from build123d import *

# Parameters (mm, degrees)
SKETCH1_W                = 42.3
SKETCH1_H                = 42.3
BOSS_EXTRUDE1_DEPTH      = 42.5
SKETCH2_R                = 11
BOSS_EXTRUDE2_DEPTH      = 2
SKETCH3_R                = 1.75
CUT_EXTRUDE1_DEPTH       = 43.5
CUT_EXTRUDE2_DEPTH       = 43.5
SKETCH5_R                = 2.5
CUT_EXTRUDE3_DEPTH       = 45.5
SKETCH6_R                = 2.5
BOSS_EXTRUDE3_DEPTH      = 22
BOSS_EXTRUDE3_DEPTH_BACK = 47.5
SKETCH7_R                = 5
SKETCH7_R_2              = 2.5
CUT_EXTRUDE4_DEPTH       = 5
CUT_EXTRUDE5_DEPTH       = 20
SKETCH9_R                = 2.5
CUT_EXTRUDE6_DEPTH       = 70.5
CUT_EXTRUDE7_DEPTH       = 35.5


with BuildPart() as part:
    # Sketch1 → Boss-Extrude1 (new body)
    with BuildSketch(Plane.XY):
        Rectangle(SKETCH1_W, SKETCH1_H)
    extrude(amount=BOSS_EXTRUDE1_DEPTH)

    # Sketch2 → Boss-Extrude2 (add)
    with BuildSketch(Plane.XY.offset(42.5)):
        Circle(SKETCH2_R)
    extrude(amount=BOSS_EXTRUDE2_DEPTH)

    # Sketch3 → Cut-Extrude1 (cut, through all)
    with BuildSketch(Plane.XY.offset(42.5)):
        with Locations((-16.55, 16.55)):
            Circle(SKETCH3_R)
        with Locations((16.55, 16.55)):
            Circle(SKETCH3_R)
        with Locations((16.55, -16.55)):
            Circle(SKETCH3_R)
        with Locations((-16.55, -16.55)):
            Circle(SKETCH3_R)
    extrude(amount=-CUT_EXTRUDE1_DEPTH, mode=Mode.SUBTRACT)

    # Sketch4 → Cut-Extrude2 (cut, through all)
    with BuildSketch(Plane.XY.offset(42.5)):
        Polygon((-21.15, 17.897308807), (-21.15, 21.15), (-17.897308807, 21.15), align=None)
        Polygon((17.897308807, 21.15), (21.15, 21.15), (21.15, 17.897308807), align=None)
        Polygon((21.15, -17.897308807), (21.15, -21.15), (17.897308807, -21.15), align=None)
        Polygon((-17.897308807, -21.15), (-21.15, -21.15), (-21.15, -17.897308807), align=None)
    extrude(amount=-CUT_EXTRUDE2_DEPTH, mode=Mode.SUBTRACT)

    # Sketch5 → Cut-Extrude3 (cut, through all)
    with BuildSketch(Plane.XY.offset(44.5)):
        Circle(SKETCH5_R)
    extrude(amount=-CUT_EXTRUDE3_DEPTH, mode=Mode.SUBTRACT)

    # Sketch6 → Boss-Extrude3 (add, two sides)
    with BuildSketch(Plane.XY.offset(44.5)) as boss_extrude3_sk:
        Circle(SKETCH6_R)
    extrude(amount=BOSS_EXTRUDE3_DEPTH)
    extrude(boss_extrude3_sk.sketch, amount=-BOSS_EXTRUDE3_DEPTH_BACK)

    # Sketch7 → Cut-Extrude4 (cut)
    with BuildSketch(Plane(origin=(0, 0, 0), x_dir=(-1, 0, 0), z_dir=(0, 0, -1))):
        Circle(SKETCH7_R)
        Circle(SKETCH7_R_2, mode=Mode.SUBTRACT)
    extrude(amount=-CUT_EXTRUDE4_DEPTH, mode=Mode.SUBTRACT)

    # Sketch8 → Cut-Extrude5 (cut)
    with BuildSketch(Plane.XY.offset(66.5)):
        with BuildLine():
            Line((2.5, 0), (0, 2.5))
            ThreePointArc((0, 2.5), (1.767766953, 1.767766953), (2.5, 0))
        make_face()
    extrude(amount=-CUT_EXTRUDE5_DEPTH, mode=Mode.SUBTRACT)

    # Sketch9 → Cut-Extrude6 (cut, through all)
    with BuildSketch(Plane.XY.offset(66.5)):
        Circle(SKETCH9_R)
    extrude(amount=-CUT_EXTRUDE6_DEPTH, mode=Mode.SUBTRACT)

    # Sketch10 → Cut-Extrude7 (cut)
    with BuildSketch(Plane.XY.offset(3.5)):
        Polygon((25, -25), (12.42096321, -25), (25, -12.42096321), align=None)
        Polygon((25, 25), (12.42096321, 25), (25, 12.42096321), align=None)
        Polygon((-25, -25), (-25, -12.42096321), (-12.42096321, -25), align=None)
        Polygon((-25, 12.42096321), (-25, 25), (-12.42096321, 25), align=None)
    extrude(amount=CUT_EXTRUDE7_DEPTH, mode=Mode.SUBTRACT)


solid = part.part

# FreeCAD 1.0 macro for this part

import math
import FreeCAD as App
import Part
import Sketcher
from FreeCAD import Vector


def add_polygon(sketch, points):
    """Adds a closed chain of lines whose ends are joined by coincident constraints."""
    first, n = sketch.GeometryCount, len(points)
    for a, b in zip(points, points[1:] + points[:1]):
        sketch.addGeometry(Part.LineSegment(App.Vector(*a, 0), App.Vector(*b, 0)), False)
    for i in range(n):
        sketch.addConstraint(Sketcher.Constraint("Coincident", first + i, 2, first + (i + 1) % n, 1))

doc = App.newDocument("Part")
body = doc.addObject("PartDesign::Body", "Body")

sketch1 = body.newObject("Sketcher::SketchObject", "Sketch")
sketch1.AttachmentSupport = (doc.getObject("XY_Plane"), [""])
sketch1.MapMode = "FlatFace"
add_polygon(sketch1, [(-21, 21), (-21, -21), (21, -21), (21, 21)])
sketch1.addConstraint([
    Sketcher.Constraint("Vertical", 0),
    Sketcher.Constraint("Horizontal", 1),
    Sketcher.Constraint("Vertical", 2),
    Sketcher.Constraint("Horizontal", 3),
    Sketcher.Constraint("Symmetric", 0, 2, 2, 2, -1, 1),
    Sketcher.Constraint("Equal", 3, 0),
    Sketcher.Constraint("DistanceX", 1, 1, 1, 2, 42.3),
])
pad1 = body.newObject("PartDesign::Pad", "Pad")
pad1.Profile = sketch1
pad1.Length = 42.5

sketch2 = body.newObject("Sketcher::SketchObject", "Sketch001")
sketch2.AttachmentSupport = (doc.getObject("XY_Plane"), [""])
sketch2.MapMode = "FlatFace"
sketch2.AttachmentOffset = App.Placement(Vector(0, 0, 42.5), App.Rotation())
sketch2.addGeometry(Part.Circle(Vector(0, 0, 0), Vector(0, 0, 1), 11), False)
sketch2.addConstraint([
    Sketcher.Constraint("Coincident", 0, 3, -1, 1),
    Sketcher.Constraint("Diameter", 0, 22.0),
])
pad2 = body.newObject("PartDesign::Pad", "Pad001")
pad2.Profile = sketch2
pad2.Length = 2

sketch3 = body.newObject("Sketcher::SketchObject", "Sketch002")
sketch3.AttachmentSupport = (doc.getObject("XY_Plane"), [""])
sketch3.MapMode = "FlatFace"
sketch3.AttachmentOffset = App.Placement(Vector(0, 0, 42.5), App.Rotation())
sketch3.addGeometry([
    Part.Circle(Vector(-16.6, 16.6, 0), Vector(0, 0, 1), 1.8),
    Part.Circle(Vector(16.6, 16.6, 0), Vector(0, 0, 1), 1.8),
    Part.Circle(Vector(16.6, -16.6, 0), Vector(0, 0, 1), 1.8),
    Part.Circle(Vector(-16.6, -16.6, 0), Vector(0, 0, 1), 1.8),
], False)
sketch3.addConstraint([
    Sketcher.Constraint("Equal", 0, 1),
    Sketcher.Constraint("Equal", 1, 2),
    Sketcher.Constraint("Equal", 2, 3),
    Sketcher.Constraint("Symmetric", 0, 3, 2, 3, -1, 1),
    Sketcher.Constraint("Symmetric", 1, 3, 3, 3, -1, 1),
    Sketcher.Constraint("Symmetric", 0, 3, 1, 3, -2),
    Sketcher.Constraint("Diameter", 0, 3.5),
    Sketcher.Constraint("DistanceX", 0, 3, 1, 3, 33.1),
    Sketcher.Constraint("DistanceY", 2, 3, 1, 3, 33.1),
])
pocket1 = body.newObject("PartDesign::Pocket", "Pocket")
pocket1.Profile = sketch3
pocket1.Type = "ThroughAll"

sketch4 = body.newObject("Sketcher::SketchObject", "Sketch003")
sketch4.AttachmentSupport = (doc.getObject("XY_Plane"), [""])
sketch4.MapMode = "FlatFace"
sketch4.AttachmentOffset = App.Placement(Vector(0, 0, 42.5), App.Rotation())
add_polygon(sketch4, [(-21.1, 21.1), (-21.1, 17.9), (-17.9, 21.1)])
add_polygon(sketch4, [(21.1, 21.1), (17.9, 21.1), (21.1, 17.9)])
add_polygon(sketch4, [(21.1, -21.1), (21.1, -17.9), (17.9, -21.1)])
add_polygon(sketch4, [(-21.1, -21.1), (-17.9, -21.1), (-21.1, -17.9)])
sketch4.addConstraint([
    Sketcher.Constraint("Vertical", 0),
    Sketcher.Constraint("Horizontal", 2),
    Sketcher.Constraint("Horizontal", 3),
    Sketcher.Constraint("Vertical", 5),
    Sketcher.Constraint("Vertical", 6),
    Sketcher.Constraint("Horizontal", 8),
    Sketcher.Constraint("Horizontal", 9),
    Sketcher.Constraint("Vertical", 11),
    Sketcher.Constraint("Symmetric", 0, 2, 6, 2, -1, 1),
    Sketcher.Constraint("Symmetric", 1, 2, 7, 2, -1, 1),
    Sketcher.Constraint("Symmetric", 3, 2, 9, 2, -1, 1),
    Sketcher.Constraint("Symmetric", 4, 2, 10, 2, -1, 1),
    Sketcher.Constraint("Symmetric", 1, 2, 3, 2, -2),
    Sketcher.Constraint("Symmetric", 0, 2, 4, 2, -2),
    Sketcher.Constraint("Perpendicular", 1, 4),
    Sketcher.Constraint("Distance", 1, 4.6),
    Sketcher.Constraint("DistanceX", 0, 2, 4, 2, 42.3),
    Sketcher.Constraint("DistanceY", 7, 2, 3, 2, 42.3),
])
pocket2 = body.newObject("PartDesign::Pocket", "Pocket001")
pocket2.Profile = sketch4
pocket2.Type = "ThroughAll"

sketch5 = body.newObject("Sketcher::SketchObject", "Sketch004")
sketch5.AttachmentSupport = (doc.getObject("XY_Plane"), [""])
sketch5.MapMode = "FlatFace"
sketch5.AttachmentOffset = App.Placement(Vector(0, 0, 44.5), App.Rotation())
sketch5.addGeometry(Part.Circle(Vector(0, 0, 0), Vector(0, 0, 1), 2.5), False)
sketch5.addConstraint([
    Sketcher.Constraint("Coincident", 0, 3, -1, 1),
    Sketcher.Constraint("Diameter", 0, 5.0),
])
pocket3 = body.newObject("PartDesign::Pocket", "Pocket002")
pocket3.Profile = sketch5
pocket3.Type = "ThroughAll"

sketch6 = body.newObject("Sketcher::SketchObject", "Sketch005")
sketch6.AttachmentSupport = (doc.getObject("XY_Plane"), [""])
sketch6.MapMode = "FlatFace"
sketch6.AttachmentOffset = App.Placement(Vector(0, 0, 44.5), App.Rotation())
sketch6.addGeometry(Part.Circle(Vector(0, 0, 0), Vector(0, 0, 1), 2.5), False)
sketch6.addConstraint([
    Sketcher.Constraint("Coincident", 0, 3, -1, 1),
    Sketcher.Constraint("Diameter", 0, 5.0),
])
pad3 = body.newObject("PartDesign::Pad", "Pad002")
pad3.Profile = sketch6
pad3.Type = "TwoLengths"
pad3.Length = 22
pad3.Length2 = 47.5

sketch7 = body.newObject("Sketcher::SketchObject", "Sketch006")
sketch7.AttachmentSupport = (doc.getObject("XY_Plane"), [""])
sketch7.MapMode = "FlatFace"
sketch7.addGeometry([
    Part.Circle(Vector(0, 0, 0), Vector(0, 0, 1), 5),
    Part.Circle(Vector(0, 0, 0), Vector(0, 0, 1), 2.5),
], False)
sketch7.addConstraint([
    Sketcher.Constraint("Coincident", 0, 3, -1, 1),
    Sketcher.Constraint("Coincident", 1, 3, -1, 1),
    Sketcher.Constraint("Diameter", 0, 10.0),
    Sketcher.Constraint("Diameter", 1, 5.0),
])
pocket4 = body.newObject("PartDesign::Pocket", "Pocket003")
pocket4.Profile = sketch7
pocket4.Length = 5
pocket4.Reversed = True

sketch8 = body.newObject("Sketcher::SketchObject", "Sketch007")
sketch8.AttachmentSupport = (doc.getObject("XY_Plane"), [""])
sketch8.MapMode = "FlatFace"
sketch8.AttachmentOffset = App.Placement(Vector(0, 0, 66.5), App.Rotation())
sketch8.addGeometry([
    Part.LineSegment(Vector(0, 2.5, 0), Vector(2.5, 0, 0)),
    Part.ArcOfCircle(Part.Circle(Vector(0, 0, 0), Vector(0, 0, 1), 2.5), math.radians(0), math.radians(90)),
], False)
sketch8.addConstraint([
    Sketcher.Constraint("Coincident", 0, 1, 1, 2),
    Sketcher.Constraint("Coincident", 1, 1, 0, 2),
    Sketcher.Constraint("Coincident", 1, 3, -1, 1),
    Sketcher.Constraint("PointOnObject", 0, 1, -2),
    Sketcher.Constraint("PointOnObject", 1, 1, -1),
    Sketcher.Constraint("Radius", 1, 2.5),
])
pocket5 = body.newObject("PartDesign::Pocket", "Pocket004")
pocket5.Profile = sketch8
pocket5.Length = 20

sketch9 = body.newObject("Sketcher::SketchObject", "Sketch008")
sketch9.AttachmentSupport = (doc.getObject("XY_Plane"), [""])
sketch9.MapMode = "FlatFace"
sketch9.AttachmentOffset = App.Placement(Vector(0, 0, 66.5), App.Rotation())
sketch9.addGeometry(Part.Circle(Vector(0, 0, 0), Vector(0, 0, 1), 2.5), False)
sketch9.addConstraint([
    Sketcher.Constraint("Coincident", 0, 3, -1, 1),
    Sketcher.Constraint("Diameter", 0, 5.0),
])
pocket6 = body.newObject("PartDesign::Pocket", "Pocket005")
pocket6.Profile = sketch9
pocket6.Type = "ThroughAll"

sketch10 = body.newObject("Sketcher::SketchObject", "Sketch009")
sketch10.AttachmentSupport = (doc.getObject("XY_Plane"), [""])
sketch10.MapMode = "FlatFace"
sketch10.AttachmentOffset = App.Placement(Vector(0, 0, 3.5), App.Rotation())
add_polygon(sketch10, [(12, -25), (25, -25), (25, -12)])
add_polygon(sketch10, [(25, 25), (12, 25), (25, 12)])
add_polygon(sketch10, [(-25, -12), (-25, -25), (-12, -25)])
add_polygon(sketch10, [(-25, 25), (-25, 12), (-12, 25)])
sketch10.addConstraint([
    Sketcher.Constraint("Horizontal", 0),
    Sketcher.Constraint("Vertical", 1),
    Sketcher.Constraint("Horizontal", 3),
    Sketcher.Constraint("Vertical", 5),
    Sketcher.Constraint("Vertical", 6),
    Sketcher.Constraint("Horizontal", 7),
    Sketcher.Constraint("Vertical", 9),
    Sketcher.Constraint("Horizontal", 11),
    Sketcher.Constraint("Symmetric", 5, 2, 6, 2, -1, 1),
    Sketcher.Constraint("Symmetric", 1, 2, 9, 2, -1, 1),
    Sketcher.Constraint("Symmetric", 2, 2, 10, 2, -1, 1),
    Sketcher.Constraint("Symmetric", 0, 2, 6, 2, -2),
    Sketcher.Constraint("Perpendicular", 2, 4),
    Sketcher.Constraint("Parallel", 4, 8),
    Sketcher.Constraint("Horizontal", 1, 2, 8, 2),
    Sketcher.Constraint("Horizontal", 4, 2, 9, 2),
    Sketcher.Constraint("Vertical", 2, 2, 3, 2),
    Sketcher.Constraint("DistanceX", -1, 1, 0, 2, 25.0),
    Sketcher.Constraint("DistanceY", 0, 2, -1, 1, 25.0),
    Sketcher.Constraint("DistanceX", 0, 1, 0, 2, 12.579037),
])
pocket7 = body.newObject("PartDesign::Pocket", "Pocket006")
pocket7.Profile = sketch10
pocket7.Length = 35.5
pocket7.Reversed = True

doc.recompute()
